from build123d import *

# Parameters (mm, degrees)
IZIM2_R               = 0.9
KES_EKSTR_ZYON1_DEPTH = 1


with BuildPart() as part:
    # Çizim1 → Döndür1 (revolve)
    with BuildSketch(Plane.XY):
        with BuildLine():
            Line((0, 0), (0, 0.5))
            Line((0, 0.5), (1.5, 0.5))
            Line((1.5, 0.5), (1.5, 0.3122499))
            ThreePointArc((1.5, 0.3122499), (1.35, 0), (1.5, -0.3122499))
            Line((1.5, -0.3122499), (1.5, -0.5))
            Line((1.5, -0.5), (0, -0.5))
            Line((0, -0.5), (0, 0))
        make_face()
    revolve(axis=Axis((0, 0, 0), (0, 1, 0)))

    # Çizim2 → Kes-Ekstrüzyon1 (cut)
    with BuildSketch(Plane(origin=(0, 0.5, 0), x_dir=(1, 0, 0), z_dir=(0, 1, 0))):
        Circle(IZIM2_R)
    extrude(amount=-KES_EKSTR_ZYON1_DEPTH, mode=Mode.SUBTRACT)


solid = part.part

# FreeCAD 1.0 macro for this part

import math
import FreeCAD as App
import Part
import Sketcher

V = App.Vector

doc = App.newDocument("Part")
body = doc.addObject("PartDesign::Body", "Body")

# Sketch on XY plane
sketch1 = doc.addObject("Sketcher::SketchObject", "Sketch")
body.addObject(sketch1)
sketch1.AttachmentSupport = (doc.XY_Plane, [""])
sketch1.MapMode = "FlatFace"
sketch1.addGeometry(Part.LineSegment(V(1.5, 0.5, 0), V(0, 0.5, 0)), False)
sketch1.addGeometry(Part.LineSegment(V(0, 0.5, 0), V(0, -0.5, 0)), False)
sketch1.addGeometry(Part.LineSegment(V(0, -0.5, 0), V(1.5, -0.5, 0)), False)
sketch1.addGeometry(Part.LineSegment(V(1.5, -0.5, 0), V(1.5, -0.31, 0)), False)
sketch1.addGeometry(Part.ArcOfCircle(Part.Circle(V(1.75, 0, 0), V(0, 0, 1), 0.4), math.radians(129), math.radians(231)), False)
sketch1.addGeometry(Part.LineSegment(V(1.5, 0.31, 0), V(1.5, 0.5, 0)), False)
sketch1.addConstraint(Sketcher.Constraint("Coincident", 0, 2, 1, 1))
sketch1.addConstraint(Sketcher.Constraint("Coincident", 1, 2, 2, 1))
sketch1.addConstraint(Sketcher.Constraint("Coincident", 2, 2, 3, 1))
sketch1.addConstraint(Sketcher.Constraint("Coincident", 3, 2, 4, 2))
sketch1.addConstraint(Sketcher.Constraint("Coincident", 4, 1, 5, 1))
sketch1.addConstraint(Sketcher.Constraint("Coincident", 5, 2, 0, 1))
sketch1.addConstraint(Sketcher.Constraint("Horizontal", 0))
sketch1.addConstraint(Sketcher.Constraint("Vertical", 1))
sketch1.addConstraint(Sketcher.Constraint("Horizontal", 2))
sketch1.addConstraint(Sketcher.Constraint("Vertical", 3))
sketch1.addConstraint(Sketcher.Constraint("Vertical", 5))
sketch1.addConstraint(Sketcher.Constraint("Symmetric", 0, 2, 1, 2, -1, 1))
sketch1.addConstraint(Sketcher.Constraint("Symmetric", 3, 2, 4, 1, -1))
sketch1.addConstraint(Sketcher.Constraint("Radius", 4, 0.4))
sketch1.addConstraint(Sketcher.Constraint("DistanceY", 1, 2, 1, 1, 1.0))
sketch1.addConstraint(Sketcher.Constraint("DistanceX", 0, 2, 0, 1, 1.5))
sketch1.addConstraint(Sketcher.Constraint("DistanceX", -1, 1, 4, 3, 1.75))
revolution = doc.addObject("PartDesign::Revolution", "Revolution")
body.addObject(revolution)
revolution.Profile = sketch1
revolution.ReferenceAxis = (sketch1, ["V_Axis"])
revolution.Angle = 360

# Sketch on XZ plane
sketch2 = doc.addObject("Sketcher::SketchObject", "Sketch001")
body.addObject(sketch2)
sketch2.AttachmentSupport = (doc.XZ_Plane, [""])
sketch2.MapMode = "FlatFace"
sketch2.AttachmentOffset = App.Placement(V(0, 0, -0.5), App.Rotation())
sketch2.addGeometry(Part.Circle(V(0, 0, 0), V(0, 0, 1), 0.9), False)
sketch2.addConstraint(Sketcher.Constraint("Coincident", 0, 3, -1, 1))
sketch2.addConstraint(Sketcher.Constraint("Diameter", 0, 1.8))
pocket1 = doc.addObject("PartDesign::Pocket", "Pocket")
body.addObject(pocket1)
pocket1.Profile = sketch2
pocket1.Length = 1
pocket1.Reversed = True

doc.recompute()
